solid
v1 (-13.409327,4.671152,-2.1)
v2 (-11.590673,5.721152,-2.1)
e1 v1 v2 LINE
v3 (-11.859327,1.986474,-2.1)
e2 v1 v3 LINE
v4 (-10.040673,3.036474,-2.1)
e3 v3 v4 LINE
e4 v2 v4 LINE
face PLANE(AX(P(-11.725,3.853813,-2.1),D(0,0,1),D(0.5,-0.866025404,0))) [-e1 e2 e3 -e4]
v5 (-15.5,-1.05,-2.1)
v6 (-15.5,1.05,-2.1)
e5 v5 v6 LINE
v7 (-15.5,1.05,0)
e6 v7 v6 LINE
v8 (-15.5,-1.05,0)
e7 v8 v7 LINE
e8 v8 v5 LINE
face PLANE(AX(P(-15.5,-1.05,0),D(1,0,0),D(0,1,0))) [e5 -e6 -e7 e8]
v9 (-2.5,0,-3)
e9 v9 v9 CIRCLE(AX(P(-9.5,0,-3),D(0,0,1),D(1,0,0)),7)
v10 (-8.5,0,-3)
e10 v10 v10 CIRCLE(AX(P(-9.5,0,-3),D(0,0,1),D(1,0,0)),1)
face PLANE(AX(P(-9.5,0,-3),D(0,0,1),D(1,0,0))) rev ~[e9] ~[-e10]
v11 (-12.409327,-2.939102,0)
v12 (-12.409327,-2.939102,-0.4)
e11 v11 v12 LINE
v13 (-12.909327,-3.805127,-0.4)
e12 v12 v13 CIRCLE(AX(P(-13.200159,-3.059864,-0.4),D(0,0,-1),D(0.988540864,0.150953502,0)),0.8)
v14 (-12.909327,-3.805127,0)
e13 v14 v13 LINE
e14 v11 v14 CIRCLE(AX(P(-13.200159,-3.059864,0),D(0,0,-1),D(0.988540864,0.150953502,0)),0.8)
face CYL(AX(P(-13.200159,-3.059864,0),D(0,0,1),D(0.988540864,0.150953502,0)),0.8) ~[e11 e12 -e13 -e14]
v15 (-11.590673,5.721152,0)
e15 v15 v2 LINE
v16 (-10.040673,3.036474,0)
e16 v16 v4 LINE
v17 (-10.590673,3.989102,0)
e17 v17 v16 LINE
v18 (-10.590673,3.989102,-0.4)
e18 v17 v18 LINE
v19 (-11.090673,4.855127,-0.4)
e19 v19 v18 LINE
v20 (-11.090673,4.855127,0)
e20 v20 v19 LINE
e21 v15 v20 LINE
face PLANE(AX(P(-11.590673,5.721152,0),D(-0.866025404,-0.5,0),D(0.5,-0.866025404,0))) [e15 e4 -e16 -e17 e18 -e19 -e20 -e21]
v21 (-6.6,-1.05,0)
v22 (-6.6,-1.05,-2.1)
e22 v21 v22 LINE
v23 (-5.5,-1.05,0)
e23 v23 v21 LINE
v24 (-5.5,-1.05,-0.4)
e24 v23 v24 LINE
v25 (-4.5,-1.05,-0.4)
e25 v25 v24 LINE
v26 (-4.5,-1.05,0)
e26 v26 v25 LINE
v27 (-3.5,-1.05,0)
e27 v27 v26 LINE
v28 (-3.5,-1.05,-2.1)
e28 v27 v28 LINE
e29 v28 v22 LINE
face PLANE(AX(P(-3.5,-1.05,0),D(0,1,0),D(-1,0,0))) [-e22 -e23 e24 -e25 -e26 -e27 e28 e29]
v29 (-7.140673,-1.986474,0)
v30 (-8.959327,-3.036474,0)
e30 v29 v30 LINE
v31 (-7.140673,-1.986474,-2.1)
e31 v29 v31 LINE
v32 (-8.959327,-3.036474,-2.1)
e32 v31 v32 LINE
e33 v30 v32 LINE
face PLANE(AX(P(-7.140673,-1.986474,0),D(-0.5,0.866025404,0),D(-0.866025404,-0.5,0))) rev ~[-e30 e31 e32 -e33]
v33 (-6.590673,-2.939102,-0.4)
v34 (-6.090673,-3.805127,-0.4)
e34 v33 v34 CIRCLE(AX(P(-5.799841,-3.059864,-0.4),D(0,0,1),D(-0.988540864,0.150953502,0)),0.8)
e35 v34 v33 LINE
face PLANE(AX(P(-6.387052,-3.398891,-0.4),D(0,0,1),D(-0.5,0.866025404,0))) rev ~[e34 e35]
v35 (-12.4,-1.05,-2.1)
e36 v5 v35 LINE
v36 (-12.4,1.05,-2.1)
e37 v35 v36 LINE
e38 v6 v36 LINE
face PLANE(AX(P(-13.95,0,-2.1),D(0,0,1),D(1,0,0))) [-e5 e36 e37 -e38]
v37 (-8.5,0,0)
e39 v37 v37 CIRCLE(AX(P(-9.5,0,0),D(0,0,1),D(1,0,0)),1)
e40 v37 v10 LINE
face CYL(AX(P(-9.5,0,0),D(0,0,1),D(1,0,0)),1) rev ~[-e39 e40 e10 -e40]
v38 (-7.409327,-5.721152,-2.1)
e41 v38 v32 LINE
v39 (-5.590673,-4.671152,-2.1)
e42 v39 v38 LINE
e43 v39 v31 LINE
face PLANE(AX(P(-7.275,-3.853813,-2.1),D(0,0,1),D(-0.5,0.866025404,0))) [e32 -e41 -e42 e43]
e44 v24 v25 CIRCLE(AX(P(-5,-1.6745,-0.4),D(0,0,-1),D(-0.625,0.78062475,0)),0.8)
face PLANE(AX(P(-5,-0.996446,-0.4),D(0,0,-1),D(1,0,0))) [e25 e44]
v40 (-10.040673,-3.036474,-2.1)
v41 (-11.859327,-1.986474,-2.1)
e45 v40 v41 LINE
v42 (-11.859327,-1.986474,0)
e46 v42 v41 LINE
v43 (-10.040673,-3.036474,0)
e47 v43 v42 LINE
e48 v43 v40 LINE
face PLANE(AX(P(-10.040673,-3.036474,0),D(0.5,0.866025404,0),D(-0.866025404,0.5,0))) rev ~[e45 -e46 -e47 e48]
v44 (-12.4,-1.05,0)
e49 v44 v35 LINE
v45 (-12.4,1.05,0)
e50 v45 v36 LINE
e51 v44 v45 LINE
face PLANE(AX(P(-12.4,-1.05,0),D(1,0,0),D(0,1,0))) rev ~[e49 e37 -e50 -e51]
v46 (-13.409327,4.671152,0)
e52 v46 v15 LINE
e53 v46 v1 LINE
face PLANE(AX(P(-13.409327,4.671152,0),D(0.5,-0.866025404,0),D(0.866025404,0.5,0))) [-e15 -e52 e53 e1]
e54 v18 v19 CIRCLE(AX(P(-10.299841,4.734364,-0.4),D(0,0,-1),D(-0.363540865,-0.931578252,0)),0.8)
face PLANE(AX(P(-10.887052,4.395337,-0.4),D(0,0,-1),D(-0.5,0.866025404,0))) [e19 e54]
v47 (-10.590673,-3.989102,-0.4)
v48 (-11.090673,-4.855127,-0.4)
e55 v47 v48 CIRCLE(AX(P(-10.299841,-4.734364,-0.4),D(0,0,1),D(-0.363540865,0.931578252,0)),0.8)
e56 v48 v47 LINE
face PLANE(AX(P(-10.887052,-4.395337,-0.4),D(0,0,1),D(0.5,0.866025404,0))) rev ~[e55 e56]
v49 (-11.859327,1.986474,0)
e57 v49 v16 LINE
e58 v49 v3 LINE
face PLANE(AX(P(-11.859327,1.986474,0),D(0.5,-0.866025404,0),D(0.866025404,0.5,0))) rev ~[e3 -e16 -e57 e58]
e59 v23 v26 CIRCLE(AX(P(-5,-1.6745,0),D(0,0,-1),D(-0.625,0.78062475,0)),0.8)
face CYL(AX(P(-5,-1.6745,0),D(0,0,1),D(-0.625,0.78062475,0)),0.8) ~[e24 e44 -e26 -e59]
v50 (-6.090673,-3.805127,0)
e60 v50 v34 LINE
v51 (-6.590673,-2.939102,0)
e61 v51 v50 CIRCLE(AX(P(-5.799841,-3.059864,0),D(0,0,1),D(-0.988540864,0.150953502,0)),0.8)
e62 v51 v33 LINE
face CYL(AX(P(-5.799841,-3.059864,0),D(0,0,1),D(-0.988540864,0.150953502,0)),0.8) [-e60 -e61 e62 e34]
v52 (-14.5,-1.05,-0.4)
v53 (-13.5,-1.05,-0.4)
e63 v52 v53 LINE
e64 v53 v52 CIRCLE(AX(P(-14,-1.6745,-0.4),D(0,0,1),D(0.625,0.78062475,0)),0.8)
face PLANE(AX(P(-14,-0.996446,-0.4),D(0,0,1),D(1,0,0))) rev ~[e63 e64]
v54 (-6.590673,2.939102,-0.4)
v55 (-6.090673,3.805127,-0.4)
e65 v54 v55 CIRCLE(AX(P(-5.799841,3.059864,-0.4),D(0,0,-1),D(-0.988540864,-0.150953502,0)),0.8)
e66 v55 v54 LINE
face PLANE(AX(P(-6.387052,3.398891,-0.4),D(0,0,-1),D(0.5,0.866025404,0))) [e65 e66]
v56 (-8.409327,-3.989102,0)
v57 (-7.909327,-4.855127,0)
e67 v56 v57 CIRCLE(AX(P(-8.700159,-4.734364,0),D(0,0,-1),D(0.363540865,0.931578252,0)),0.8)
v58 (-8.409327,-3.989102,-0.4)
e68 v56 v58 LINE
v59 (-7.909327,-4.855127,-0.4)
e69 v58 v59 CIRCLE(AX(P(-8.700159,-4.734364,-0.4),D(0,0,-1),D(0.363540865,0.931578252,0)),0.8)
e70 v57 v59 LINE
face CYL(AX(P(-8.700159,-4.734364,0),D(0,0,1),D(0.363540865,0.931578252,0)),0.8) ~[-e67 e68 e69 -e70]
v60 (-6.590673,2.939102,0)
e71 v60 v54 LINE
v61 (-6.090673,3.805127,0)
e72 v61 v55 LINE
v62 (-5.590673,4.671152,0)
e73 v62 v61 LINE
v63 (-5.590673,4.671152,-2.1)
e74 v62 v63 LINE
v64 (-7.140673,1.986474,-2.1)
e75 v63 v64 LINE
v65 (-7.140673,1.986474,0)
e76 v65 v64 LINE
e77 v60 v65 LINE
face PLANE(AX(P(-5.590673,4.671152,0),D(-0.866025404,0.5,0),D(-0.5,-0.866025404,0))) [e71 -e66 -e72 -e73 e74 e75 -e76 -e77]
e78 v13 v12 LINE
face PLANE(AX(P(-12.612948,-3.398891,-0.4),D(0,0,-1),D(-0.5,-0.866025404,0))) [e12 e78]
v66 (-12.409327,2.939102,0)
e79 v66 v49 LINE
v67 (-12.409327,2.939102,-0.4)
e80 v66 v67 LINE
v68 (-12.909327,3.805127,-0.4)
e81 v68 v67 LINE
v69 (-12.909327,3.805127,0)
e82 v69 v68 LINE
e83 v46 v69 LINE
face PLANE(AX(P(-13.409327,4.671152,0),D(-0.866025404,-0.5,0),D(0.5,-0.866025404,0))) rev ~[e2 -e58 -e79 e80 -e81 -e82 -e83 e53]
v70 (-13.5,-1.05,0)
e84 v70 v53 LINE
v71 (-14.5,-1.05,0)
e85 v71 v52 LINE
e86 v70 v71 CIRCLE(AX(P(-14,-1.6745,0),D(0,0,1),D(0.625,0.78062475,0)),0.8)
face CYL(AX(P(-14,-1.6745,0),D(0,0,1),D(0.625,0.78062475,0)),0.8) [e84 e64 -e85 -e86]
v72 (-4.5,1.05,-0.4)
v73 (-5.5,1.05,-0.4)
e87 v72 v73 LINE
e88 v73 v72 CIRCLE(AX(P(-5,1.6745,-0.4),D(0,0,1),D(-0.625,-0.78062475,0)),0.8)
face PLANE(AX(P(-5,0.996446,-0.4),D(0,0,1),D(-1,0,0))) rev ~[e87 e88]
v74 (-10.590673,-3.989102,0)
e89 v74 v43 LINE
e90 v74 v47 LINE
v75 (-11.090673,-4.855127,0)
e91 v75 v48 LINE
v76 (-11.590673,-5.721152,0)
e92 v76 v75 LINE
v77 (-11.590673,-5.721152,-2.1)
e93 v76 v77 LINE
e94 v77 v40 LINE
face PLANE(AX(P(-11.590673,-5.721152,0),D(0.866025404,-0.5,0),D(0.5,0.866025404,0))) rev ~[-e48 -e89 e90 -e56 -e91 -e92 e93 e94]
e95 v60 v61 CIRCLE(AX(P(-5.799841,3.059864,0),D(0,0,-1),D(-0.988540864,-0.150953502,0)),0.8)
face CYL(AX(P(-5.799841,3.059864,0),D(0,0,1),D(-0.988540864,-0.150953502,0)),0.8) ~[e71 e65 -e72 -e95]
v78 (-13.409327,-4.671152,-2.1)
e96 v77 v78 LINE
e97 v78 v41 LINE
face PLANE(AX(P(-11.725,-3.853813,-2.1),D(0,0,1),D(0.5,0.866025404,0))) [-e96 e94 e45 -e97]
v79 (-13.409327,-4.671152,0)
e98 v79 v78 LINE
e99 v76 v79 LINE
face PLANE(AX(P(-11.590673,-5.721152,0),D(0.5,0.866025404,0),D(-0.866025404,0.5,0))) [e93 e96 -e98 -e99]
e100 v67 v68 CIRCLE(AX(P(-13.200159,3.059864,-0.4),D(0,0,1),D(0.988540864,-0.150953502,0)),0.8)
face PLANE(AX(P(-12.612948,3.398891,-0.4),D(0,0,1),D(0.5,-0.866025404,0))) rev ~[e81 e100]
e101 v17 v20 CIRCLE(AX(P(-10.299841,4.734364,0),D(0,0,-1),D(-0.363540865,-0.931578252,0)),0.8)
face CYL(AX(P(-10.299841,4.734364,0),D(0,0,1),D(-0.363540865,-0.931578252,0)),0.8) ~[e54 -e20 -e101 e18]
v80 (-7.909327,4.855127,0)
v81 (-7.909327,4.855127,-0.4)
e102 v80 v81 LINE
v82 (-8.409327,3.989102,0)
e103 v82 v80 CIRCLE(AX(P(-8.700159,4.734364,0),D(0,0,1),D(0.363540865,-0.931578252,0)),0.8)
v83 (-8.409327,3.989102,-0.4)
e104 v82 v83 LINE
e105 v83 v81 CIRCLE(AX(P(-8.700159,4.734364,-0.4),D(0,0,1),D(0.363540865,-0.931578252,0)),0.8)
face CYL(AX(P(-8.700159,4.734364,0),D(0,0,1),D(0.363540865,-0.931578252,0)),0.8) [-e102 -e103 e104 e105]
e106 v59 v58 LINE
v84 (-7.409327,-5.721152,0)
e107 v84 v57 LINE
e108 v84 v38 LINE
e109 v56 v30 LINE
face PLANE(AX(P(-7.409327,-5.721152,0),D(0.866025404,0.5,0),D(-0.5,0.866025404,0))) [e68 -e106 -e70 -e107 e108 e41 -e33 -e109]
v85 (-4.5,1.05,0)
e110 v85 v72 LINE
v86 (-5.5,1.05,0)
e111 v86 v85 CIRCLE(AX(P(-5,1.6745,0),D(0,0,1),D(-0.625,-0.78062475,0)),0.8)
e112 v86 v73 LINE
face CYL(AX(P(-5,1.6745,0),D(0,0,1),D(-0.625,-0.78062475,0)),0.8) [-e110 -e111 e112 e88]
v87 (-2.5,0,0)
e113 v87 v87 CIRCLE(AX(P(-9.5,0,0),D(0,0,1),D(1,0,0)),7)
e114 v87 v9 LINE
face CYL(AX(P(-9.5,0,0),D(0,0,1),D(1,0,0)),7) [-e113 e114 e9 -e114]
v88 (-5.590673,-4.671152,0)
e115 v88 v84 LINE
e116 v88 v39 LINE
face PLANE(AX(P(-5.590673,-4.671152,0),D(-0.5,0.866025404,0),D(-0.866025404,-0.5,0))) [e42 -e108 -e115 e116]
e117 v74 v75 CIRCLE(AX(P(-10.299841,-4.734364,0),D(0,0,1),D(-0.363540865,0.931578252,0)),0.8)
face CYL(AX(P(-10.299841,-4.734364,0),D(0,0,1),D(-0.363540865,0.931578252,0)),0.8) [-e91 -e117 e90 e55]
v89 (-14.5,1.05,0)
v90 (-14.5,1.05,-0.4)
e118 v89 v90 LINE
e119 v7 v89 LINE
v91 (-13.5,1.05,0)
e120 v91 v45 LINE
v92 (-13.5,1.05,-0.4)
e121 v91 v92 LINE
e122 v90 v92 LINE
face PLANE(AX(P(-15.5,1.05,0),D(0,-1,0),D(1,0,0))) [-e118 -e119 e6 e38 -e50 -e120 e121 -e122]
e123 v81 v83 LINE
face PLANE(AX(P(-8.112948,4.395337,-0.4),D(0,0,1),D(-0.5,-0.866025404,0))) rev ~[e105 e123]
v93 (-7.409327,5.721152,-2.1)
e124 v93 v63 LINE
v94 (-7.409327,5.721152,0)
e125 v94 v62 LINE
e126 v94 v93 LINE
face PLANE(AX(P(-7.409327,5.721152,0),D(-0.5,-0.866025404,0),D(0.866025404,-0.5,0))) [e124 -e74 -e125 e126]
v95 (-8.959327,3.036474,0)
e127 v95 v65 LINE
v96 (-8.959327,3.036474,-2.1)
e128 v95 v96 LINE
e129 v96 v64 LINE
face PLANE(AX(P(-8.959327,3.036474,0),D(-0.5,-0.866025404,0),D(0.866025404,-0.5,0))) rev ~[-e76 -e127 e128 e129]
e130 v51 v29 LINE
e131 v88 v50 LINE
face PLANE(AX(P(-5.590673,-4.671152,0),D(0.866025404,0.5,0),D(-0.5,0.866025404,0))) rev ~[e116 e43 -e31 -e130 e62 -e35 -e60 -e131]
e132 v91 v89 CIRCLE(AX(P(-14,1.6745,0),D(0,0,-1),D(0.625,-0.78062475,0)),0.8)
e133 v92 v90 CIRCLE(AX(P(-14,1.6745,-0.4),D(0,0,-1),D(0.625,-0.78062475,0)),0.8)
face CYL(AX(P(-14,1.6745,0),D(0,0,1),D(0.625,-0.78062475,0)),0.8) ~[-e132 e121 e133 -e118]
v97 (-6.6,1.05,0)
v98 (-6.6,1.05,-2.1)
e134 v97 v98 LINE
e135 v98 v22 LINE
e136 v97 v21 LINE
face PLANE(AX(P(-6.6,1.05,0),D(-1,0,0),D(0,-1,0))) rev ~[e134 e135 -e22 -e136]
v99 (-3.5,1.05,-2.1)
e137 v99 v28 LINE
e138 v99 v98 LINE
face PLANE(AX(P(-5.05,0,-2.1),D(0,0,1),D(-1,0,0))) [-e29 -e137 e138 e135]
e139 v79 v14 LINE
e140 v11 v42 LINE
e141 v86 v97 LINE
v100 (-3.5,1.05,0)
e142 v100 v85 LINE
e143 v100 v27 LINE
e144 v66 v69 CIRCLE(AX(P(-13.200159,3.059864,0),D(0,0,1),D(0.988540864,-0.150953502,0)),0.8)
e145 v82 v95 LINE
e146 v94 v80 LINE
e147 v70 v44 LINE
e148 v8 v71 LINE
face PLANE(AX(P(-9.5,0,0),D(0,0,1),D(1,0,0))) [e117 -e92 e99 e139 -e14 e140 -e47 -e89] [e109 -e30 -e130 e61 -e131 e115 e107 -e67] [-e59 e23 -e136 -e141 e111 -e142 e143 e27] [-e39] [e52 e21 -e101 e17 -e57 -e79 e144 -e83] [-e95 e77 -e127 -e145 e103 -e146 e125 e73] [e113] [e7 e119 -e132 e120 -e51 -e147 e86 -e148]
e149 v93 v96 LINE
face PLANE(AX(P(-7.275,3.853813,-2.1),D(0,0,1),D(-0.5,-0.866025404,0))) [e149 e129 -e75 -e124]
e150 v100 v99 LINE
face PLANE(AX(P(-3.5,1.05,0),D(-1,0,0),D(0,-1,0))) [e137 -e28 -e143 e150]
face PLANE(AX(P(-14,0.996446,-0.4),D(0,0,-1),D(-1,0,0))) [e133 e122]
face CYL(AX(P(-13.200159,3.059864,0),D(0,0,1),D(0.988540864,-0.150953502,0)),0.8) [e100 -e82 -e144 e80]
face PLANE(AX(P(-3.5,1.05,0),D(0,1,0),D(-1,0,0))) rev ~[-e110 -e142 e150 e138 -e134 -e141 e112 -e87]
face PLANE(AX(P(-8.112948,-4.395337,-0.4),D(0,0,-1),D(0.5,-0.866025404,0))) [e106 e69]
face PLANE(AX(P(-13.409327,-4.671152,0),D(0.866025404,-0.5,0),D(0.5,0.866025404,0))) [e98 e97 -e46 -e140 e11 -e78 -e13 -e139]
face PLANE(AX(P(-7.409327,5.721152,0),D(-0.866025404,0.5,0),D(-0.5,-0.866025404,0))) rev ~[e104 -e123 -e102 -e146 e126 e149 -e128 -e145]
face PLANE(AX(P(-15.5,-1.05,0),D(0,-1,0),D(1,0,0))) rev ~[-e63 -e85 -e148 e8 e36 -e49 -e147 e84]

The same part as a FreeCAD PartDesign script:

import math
import FreeCAD as App
import Part
import Sketcher
from FreeCAD import Vector
Q = App.Units.Quantity


def add_polygon(sketch, points):
    """Adds a closed chain of lines whose ends are joined by coincident constraints."""
    first, n = sketch.GeometryCount, len(points)
    for a, b in zip(points, points[1:] + points[:1]):
        sketch.addGeometry(Part.LineSegment(App.Vector(*a, 0), App.Vector(*b, 0)), False)
    for i in range(n):
        sketch.addConstraint(Sketcher.Constraint("Coincident", first + i, 2, first + (i + 1) % n, 1))

doc = App.newDocument("Part")
params = doc.addObject("Spreadsheet::Sheet", "Params")
for row, (alias, value) in enumerate([
    ("sketch1_diameter", "14 mm"),
    ("sketch1_diameter2", "2 mm"),
    ("pad1_length", "3 mm"),
    ("sketch2_width", "3.1 mm"),
    ("sketch2_height", "2.1 mm"),
    ("pocket1_length", "2.1 mm"),
    ("sketch3_radius", "0.8 mm"),
    ("sketch3_width", "1 mm"),
    ("pad2_length", "0.4 mm"),
], start=1):
    params.set(f"A{row}", alias)
    params.set(f"B{row}", "=" + value)
    params.setAlias(f"B{row}", alias)

body = doc.addObject("PartDesign::Body", "Body")

# Sketch on XY plane
sketch1 = doc.addObject("Sketcher::SketchObject", "Sketch")
body.addObject(sketch1)
sketch1.AttachmentSupport = (doc.XY_Plane, [""])
sketch1.MapMode = "FlatFace"
sketch1.addGeometry([
    Part.Circle(Vector(-9.5, 0, 0), Vector(0, 0, 1), 7),
    Part.Circle(Vector(-9.5, 0, 0), Vector(0, 0, 1), 1),
], False)
sketch1.addConstraint([
    Sketcher.Constraint("Coincident", 1, 3, 0, 3),
    Sketcher.Constraint("PointOnObject", 0, 3, -1),
    Sketcher.Constraint("Diameter", 0, Q("14 mm")),
    Sketcher.Constraint("Diameter", 1, Q("2 mm")),
    Sketcher.Constraint("DistanceX", 0, 3, -1, 1, Q("9.5 mm")),
])
sketch1.setExpression("Constraints[2]", "Params.sketch1_diameter")
sketch1.setExpression("Constraints[3]", "Params.sketch1_diameter2")
pad1 = doc.addObject("PartDesign::Pad", "Pad")
body.addObject(pad1)
pad1.Profile = sketch1
pad1.setExpression("Length", "Params.pad1_length")
pad1.Reversed = True

# Sketch on XY plane
sketch2 = doc.addObject("Sketcher::SketchObject", "Sketch001")
body.addObject(sketch2)
sketch2.AttachmentSupport = (doc.XY_Plane, [""])
sketch2.MapMode = "FlatFace"
add_polygon(sketch2, [(-15.5, 1.1), (-15.5, -1.1), (-12.4, -1.1), (-12.4, 1.1)])  # lines 0-3
sketch2.addConstraint([
    Sketcher.Constraint("Vertical", 0),
    Sketcher.Constraint("Horizontal", 1),
    Sketcher.Constraint("Vertical", 2),
    Sketcher.Constraint("Horizontal", 3),
    Sketcher.Constraint("DistanceX", 1, 1, 1, 2, Q("3.1 mm")),
    Sketcher.Constraint("DistanceY", 0, 2, 0, 1, Q("2.1 mm")),
    Sketcher.Constraint("DistanceX", 0, 2, -1, 1, Q("15.5 mm")),
    Sketcher.Constraint("DistanceY", 0, 2, -1, 1, Q("1.05 mm")),
])
sketch2.setExpression("Constraints[8]", "Params.sketch2_width")
sketch2.setExpression("Constraints[9]", "Params.sketch2_height")
pocket1 = doc.addObject("PartDesign::Pocket", "Pocket")
body.addObject(pocket1)
pocket1.Profile = sketch2
pocket1.setExpression("Length", "Params.pocket1_length")
doc.recompute()

datumline = doc.addObject("PartDesign::Line", "DatumLine")
body.addObject(datumline)
datumline.Placement = App.Placement(Vector(-9.5, 0, 0), App.Rotation(Vector(0, 0, 1), Vector(0, 0, 1)))
polarpattern = doc.addObject("PartDesign::PolarPattern", "PolarPattern")
body.addObject(polarpattern)
polarpattern.Originals = [pocket1]
polarpattern.Axis = (datumline, [""])
polarpattern.Angle = 360
polarpattern.Occurrences = 6
body.Tip = polarpattern

# Sketch on XY plane
sketch3 = doc.addObject("Sketcher::SketchObject", "Sketch002")
body.addObject(sketch3)
sketch3.AttachmentSupport = (doc.XY_Plane, [""])
sketch3.MapMode = "FlatFace"
sketch3.addGeometry([
    Part.LineSegment(Vector(-14.5, -1.1, 0), Vector(-13.5, -1.1, 0)),
    Part.ArcOfCircle(Part.Circle(Vector(-14, -1.7, 0), Vector(0, 0, 1), 0.8), math.radians(51), math.radians(129)),
    Part.LineSegment(Vector(-13.5, 1.1, 0), Vector(-14.5, 1.1, 0)),
    Part.ArcOfCircle(Part.Circle(Vector(-14, 1.7, 0), Vector(0, 0, 1), 0.8), math.radians(-129), math.radians(-51)),
], False)
sketch3.addConstraint([
    Sketcher.Constraint("Coincident", 0, 1, 1, 2),
    Sketcher.Constraint("Coincident", 1, 1, 0, 2),
    Sketcher.Constraint("Coincident", 2, 1, 3, 2),
    Sketcher.Constraint("Coincident", 3, 1, 2, 2),
    Sketcher.Constraint("Horizontal", 0),
    Sketcher.Constraint("Horizontal", 2),
    Sketcher.Constraint("Equal", 1, 3),
    Sketcher.Constraint("Symmetric", 1, 3, 3, 3, -1),
    Sketcher.Constraint("Vertical", 1, 1, 2, 1),
    Sketcher.Constraint("Radius", 1, Q("0.8 mm")),
    Sketcher.Constraint("DistanceX", 0, 1, 0, 2, Q("1 mm")),
    Sketcher.Constraint("DistanceX", 1, 3, -1, 1, Q("14 mm")),
    Sketcher.Constraint("DistanceY", 1, 1, 2, 1, Q("2.1 mm")),
])
sketch3.setExpression("Constraints[9]", "Params.sketch3_radius")
sketch3.setExpression("Constraints[10]", "Params.sketch3_width")
pad2 = doc.addObject("PartDesign::Pad", "Pad001")
body.addObject(pad2)
pad2.Profile = sketch3
pad2.setExpression("Length", "Params.pad2_length")
pad2.Reversed = True
doc.recompute()

datumline2 = doc.addObject("PartDesign::Line", "DatumLine001")
body.addObject(datumline2)
datumline2.Placement = App.Placement(Vector(-9.5, 0, 0), App.Rotation(Vector(0, 0, 1), Vector(0, 0, 1)))
polarpattern2 = doc.addObject("PartDesign::PolarPattern", "PolarPattern001")
body.addObject(polarpattern2)
polarpattern2.Originals = [pad2]
polarpattern2.Axis = (datumline2, [""])
polarpattern2.Angle = 360
polarpattern2.Occurrences = 6
body.Tip = polarpattern2

doc.recompute()
